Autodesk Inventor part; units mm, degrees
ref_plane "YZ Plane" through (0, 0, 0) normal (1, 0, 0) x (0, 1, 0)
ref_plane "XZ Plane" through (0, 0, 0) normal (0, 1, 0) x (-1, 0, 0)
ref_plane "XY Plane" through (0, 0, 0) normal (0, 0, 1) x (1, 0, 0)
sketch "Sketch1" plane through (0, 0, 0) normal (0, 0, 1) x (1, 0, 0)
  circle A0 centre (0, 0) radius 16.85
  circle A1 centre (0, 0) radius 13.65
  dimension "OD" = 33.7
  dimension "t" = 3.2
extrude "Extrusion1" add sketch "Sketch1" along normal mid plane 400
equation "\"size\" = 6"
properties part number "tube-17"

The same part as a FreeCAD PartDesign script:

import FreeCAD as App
import Part
import Sketcher

V = App.Vector
Q = App.Units.Quantity

doc = App.newDocument("Part")
body = doc.addObject("PartDesign::Body", "Body")

sketch1 = doc.addObject("Sketcher::SketchObject", "Sketch")
body.addObject(sketch1)
sketch1.AttachmentSupport = (doc.XY_Plane, [""])
sketch1.MapMode = "FlatFace"
sketch1.addGeometry(Part.Circle(V(0, 0, 0), V(0, 0, 1), 17), False)
sketch1.addGeometry(Part.Circle(V(0, 0, 0), V(0, 0, 1), 14), False)
sketch1.addConstraint(Sketcher.Constraint("Coincident", 0, 3, -1, 1))
sketch1.addConstraint(Sketcher.Constraint("Coincident", 1, 3, -1, 1))
sketch1.addConstraint(Sketcher.Constraint("Diameter", 0, Q("33.7 mm")))
sketch1.addConstraint(Sketcher.Constraint("Diameter", 1, Q("27.3 mm")))
pad1 = doc.addObject("PartDesign::Pad", "Pad")
body.addObject(pad1)
pad1.Profile = sketch1
pad1.Length = 400
pad1.Midplane = True

doc.recompute()
